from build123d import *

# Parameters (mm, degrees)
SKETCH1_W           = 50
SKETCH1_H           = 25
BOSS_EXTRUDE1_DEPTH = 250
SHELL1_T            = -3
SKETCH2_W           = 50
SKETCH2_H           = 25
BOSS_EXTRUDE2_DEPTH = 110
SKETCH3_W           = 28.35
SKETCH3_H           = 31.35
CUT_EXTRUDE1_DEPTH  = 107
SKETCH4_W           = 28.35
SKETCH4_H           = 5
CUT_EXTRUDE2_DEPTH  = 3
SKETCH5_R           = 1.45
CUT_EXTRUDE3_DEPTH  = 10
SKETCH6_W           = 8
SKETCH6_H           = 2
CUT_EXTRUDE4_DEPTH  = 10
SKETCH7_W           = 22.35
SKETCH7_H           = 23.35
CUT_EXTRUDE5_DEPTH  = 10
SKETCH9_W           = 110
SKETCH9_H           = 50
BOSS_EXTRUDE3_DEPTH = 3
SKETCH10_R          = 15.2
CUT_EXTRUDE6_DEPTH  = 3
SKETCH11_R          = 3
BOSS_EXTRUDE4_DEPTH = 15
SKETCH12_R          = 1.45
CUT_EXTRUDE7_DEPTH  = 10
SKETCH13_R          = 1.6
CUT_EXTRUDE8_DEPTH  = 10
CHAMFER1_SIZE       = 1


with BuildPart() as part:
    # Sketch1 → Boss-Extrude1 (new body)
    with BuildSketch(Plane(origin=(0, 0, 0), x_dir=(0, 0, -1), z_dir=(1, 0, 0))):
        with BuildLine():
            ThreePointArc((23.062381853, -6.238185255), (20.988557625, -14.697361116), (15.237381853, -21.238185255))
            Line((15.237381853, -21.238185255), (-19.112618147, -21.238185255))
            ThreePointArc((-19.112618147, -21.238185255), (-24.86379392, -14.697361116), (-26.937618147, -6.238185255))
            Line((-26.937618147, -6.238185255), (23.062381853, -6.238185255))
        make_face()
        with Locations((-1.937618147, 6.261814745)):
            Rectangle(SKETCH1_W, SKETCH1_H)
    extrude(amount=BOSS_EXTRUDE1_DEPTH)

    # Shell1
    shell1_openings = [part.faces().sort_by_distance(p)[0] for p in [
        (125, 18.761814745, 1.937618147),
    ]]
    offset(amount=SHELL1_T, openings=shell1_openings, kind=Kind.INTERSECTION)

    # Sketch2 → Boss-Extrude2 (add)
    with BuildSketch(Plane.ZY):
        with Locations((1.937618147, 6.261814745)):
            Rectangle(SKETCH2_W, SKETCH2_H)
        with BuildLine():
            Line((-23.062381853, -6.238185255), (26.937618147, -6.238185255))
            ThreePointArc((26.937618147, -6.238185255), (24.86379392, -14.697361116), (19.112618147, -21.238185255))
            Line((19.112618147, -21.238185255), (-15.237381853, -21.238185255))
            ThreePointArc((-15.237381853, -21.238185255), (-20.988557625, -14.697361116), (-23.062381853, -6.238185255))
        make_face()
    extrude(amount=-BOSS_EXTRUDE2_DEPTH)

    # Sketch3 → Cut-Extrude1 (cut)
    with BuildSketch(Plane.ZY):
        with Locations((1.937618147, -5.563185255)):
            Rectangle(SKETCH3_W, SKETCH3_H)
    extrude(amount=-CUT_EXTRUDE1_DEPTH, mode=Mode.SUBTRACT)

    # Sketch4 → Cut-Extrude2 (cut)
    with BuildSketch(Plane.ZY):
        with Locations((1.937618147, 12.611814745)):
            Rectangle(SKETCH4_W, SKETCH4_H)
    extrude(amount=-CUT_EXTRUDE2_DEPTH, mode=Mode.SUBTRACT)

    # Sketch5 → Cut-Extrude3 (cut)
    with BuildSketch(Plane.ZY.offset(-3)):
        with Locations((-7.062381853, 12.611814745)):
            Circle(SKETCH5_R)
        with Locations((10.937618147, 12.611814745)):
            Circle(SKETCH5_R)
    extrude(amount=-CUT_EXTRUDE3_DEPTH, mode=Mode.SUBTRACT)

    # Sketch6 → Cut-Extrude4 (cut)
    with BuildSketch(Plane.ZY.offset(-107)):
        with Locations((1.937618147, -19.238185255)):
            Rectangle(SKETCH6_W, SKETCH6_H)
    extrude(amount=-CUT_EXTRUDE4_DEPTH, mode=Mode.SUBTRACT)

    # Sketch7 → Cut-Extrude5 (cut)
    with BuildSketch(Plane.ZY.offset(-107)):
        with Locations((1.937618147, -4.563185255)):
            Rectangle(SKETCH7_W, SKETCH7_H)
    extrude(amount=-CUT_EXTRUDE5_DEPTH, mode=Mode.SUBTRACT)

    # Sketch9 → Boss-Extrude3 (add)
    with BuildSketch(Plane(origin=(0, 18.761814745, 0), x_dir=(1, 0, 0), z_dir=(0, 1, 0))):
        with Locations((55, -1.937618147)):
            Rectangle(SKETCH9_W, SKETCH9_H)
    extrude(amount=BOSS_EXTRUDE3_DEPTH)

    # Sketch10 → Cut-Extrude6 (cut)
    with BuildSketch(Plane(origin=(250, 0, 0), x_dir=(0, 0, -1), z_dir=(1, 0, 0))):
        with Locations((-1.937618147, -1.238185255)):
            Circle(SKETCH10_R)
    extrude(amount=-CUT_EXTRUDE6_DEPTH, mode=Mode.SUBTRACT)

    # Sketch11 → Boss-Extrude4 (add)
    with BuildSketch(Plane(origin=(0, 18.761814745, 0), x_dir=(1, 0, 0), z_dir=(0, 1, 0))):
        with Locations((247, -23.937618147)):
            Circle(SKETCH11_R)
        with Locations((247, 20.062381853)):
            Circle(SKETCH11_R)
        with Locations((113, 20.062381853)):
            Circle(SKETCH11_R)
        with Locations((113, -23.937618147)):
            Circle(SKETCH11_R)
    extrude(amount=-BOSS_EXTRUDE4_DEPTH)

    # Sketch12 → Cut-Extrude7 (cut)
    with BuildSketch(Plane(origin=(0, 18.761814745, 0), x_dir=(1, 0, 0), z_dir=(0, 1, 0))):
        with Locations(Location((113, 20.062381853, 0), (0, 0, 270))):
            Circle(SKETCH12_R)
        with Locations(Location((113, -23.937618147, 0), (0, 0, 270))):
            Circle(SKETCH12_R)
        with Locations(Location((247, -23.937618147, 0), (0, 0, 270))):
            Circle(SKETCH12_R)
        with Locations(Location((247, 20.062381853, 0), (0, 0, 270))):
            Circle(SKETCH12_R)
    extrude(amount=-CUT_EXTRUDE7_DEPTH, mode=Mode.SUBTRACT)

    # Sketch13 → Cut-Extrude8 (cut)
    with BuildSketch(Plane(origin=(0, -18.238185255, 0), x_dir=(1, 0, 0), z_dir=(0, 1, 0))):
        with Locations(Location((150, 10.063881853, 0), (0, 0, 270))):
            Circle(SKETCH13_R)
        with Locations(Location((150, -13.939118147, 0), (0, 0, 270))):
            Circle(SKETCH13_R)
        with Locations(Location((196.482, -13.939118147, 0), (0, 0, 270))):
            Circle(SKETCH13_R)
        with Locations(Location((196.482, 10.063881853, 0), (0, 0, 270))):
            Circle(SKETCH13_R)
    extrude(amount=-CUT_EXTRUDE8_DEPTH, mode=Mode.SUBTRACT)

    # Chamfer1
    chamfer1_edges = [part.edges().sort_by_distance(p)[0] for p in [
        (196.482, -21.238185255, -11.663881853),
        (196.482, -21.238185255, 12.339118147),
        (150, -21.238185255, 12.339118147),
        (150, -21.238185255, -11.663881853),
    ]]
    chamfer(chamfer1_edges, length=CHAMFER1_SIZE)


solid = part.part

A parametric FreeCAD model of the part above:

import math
import FreeCAD as App
import Part
import Sketcher
from FreeCAD import Vector


def edges_at(feature, points):
    """Names of the edges that pass closest to the given points."""
    edges = feature.Shape.Edges
    near = lambda p: min(range(len(edges)), key=lambda i: edges[i].distToShape(Part.Vertex(*p))[0])
    return sorted({f"Edge{near(p) + 1}" for p in points})


def faces_at(feature, points):
    """Names of the faces that lie closest to the given points."""
    faces = feature.Shape.Faces
    near = lambda p: min(range(len(faces)), key=lambda i: faces[i].distToShape(Part.Vertex(*p))[0])
    return sorted({f"Face{near(p) + 1}" for p in points})


def add_polygon(sketch, points):
    """Adds a closed chain of lines whose ends are joined by coincident constraints."""
    first, n = sketch.GeometryCount, len(points)
    for a, b in zip(points, points[1:] + points[:1]):
        sketch.addGeometry(Part.LineSegment(App.Vector(*a, 0), App.Vector(*b, 0)), False)
    for i in range(n):
        sketch.addConstraint(Sketcher.Constraint("Coincident", first + i, 2, first + (i + 1) % n, 1))

doc = App.newDocument("Part")
params = doc.addObject("Spreadsheet::Sheet", "Params")
for row, (alias, value) in enumerate([
    ("sketch1_width", "25 mm"),
    ("sketch1_height", "50 mm"),
    ("sketch1_height2", "34.35 mm"),
    ("pad1_length", "250 mm"),
    ("thickness_wall", "3 mm"),
    ("sketch2_width", "25 mm"),
    ("sketch2_height", "50 mm"),
    ("sketch2_height2", "34.35 mm"),
    ("pad2_length", "110 mm"),
    ("sketch3_width", "31.35 mm"),
    ("sketch3_height", "28.35 mm"),
    ("pocket1_length", "107 mm"),
    ("sketch4_width", "5 mm"),
    ("sketch4_height", "28.35 mm"),
    ("pocket2_length", "3 mm"),
    ("sketch5_diameter", "2.9 mm"),
    ("pocket3_length", "10 mm"),
    ("sketch6_width", "2 mm"),
    ("sketch6_height", "8 mm"),
    ("pocket4_length", "10 mm"),
    ("sketch7_width", "23.35 mm"),
    ("sketch7_height", "22.35 mm"),
    ("pocket5_length", "10 mm"),
    ("sketch8_width", "110 mm"),
    ("sketch8_height", "50 mm"),
    ("pad3_length", "3 mm"),
    ("sketch9_diameter", "30.4 mm"),
    ("pocket6_length", "3 mm"),
    ("sketch10_diameter", "6 mm"),
    ("pad4_length", "15 mm"),
    ("sketch11_diameter", "2.9 mm"),
    ("pocket7_length", "10 mm"),
    ("sketch12_diameter", "3.2 mm"),
    ("pocket8_length", "10 mm"),
    ("chamfer_size", "1 mm"),
], start=1):
    params.set(f"A{row}", alias)
    params.set(f"B{row}", "=" + value)
    params.setAlias(f"B{row}", alias)

body = doc.addObject("PartDesign::Body", "Body")

# Sketch on YZ plane
sketch1 = doc.addObject("Sketcher::SketchObject", "Sketch")
body.addObject(sketch1)
sketch1.AttachmentSupport = (doc.YZ_Plane, [""])
sketch1.MapMode = "FlatFace"
sketch1.addGeometry(Part.ArcOfCircle(Part.Circle(Vector(-6, -5, 0), Vector(0, 0, 1), 18), math.radians(-145), math.radians(-90)), False)
sketch1.addGeometry(Part.LineSegment(Vector(-6, -23, 0), Vector(19, -23, 0)), False)
sketch1.addGeometry(Part.LineSegment(Vector(19, -23, 0), Vector(19, 27, 0)), False)
sketch1.addGeometry(Part.LineSegment(Vector(19, 27, 0), Vector(-6, 27, 0)), False)
sketch1.addGeometry(Part.ArcOfCircle(Part.Circle(Vector(-6, 9, 0), Vector(0, 0, 1), 18), math.radians(90), math.radians(145)), False)
sketch1.addGeometry(Part.LineSegment(Vector(-21, 19, 0), Vector(-21, -15, 0)), False)
sketch1.addConstraint(Sketcher.Constraint("Tangent", 0, 2, 1, 1))
sketch1.addConstraint(Sketcher.Constraint("Coincident", 1, 2, 2, 1))
sketch1.addConstraint(Sketcher.Constraint("Coincident", 2, 2, 3, 1))
sketch1.addConstraint(Sketcher.Constraint("Tangent", 3, 2, 4, 1))
sketch1.addConstraint(Sketcher.Constraint("Coincident", 4, 2, 5, 1))
sketch1.addConstraint(Sketcher.Constraint("Coincident", 5, 2, 0, 1))
sketch1.addConstraint(Sketcher.Constraint("Horizontal", 1))
sketch1.addConstraint(Sketcher.Constraint("Vertical", 2))
sketch1.addConstraint(Sketcher.Constraint("Horizontal", 3))
sketch1.addConstraint(Sketcher.Constraint("Vertical", 5))
sketch1.addConstraint(Sketcher.Constraint("Equal", 0, 4))
sketch1.addConstraint(Sketcher.Constraint("Vertical", 0, 3, 4, 3))
sketch1.addConstraint(Sketcher.Constraint("DistanceX", 1, 1, 1, 2, 25.0))
sketch1.addConstraint(Sketcher.Constraint("DistanceY", 2, 1, 2, 2, 50.0))
sketch1.addConstraint(Sketcher.Constraint("DistanceX", 4, 2, 3, 2, 15.0))
sketch1.addConstraint(Sketcher.Constraint("DistanceY", 5, 2, 5, 1, 34.35))
sketch1.addConstraint(Sketcher.Constraint("DistanceY", -1, 1, 4, 3, 8.648121))
sketch1.addConstraint(Sketcher.Constraint("DistanceX", 0, 3, -1, 1, 6.238185))
sketch1.setExpression("Constraints[12]", "Params.sketch1_width")
sketch1.setExpression("Constraints[13]", "Params.sketch1_height")
sketch1.setExpression("Constraints[15]", "Params.sketch1_height2")
pad1 = doc.addObject("PartDesign::Pad", "Pad")
body.addObject(pad1)
pad1.Profile = sketch1
pad1.setExpression("Length", "Params.pad1_length")
doc.recompute()

thickness = doc.addObject("PartDesign::Thickness", "Thickness")
body.addObject(thickness)
thickness.Base = (pad1, faces_at(pad1, [(125, 18.762, 1.938)]))
thickness.setExpression("Value", "Params.thickness_wall")
thickness.Reversed = True
thickness.Join = "Intersection"

# Sketch on YZ plane
sketch2 = doc.addObject("Sketcher::SketchObject", "Sketch001")
body.addObject(sketch2)
sketch2.AttachmentSupport = (doc.YZ_Plane, [""])
sketch2.MapMode = "FlatFace"
sketch2.addGeometry(Part.LineSegment(Vector(19, -23, 0), Vector(-6, -23, 0)), False)
sketch2.addGeometry(Part.ArcOfCircle(Part.Circle(Vector(-6, -5, 0), Vector(0, 0, 1), 18), math.radians(-145), math.radians(-90)), False)
sketch2.addGeometry(Part.LineSegment(Vector(-21, -15, 0), Vector(-21, 19, 0)), False)
sketch2.addGeometry(Part.ArcOfCircle(Part.Circle(Vector(-6, 9, 0), Vector(0, 0, 1), 18), math.radians(90), math.radians(145)), False)
sketch2.addGeometry(Part.LineSegment(Vector(-6, 27, 0), Vector(19, 27, 0)), False)
sketch2.addGeometry(Part.LineSegment(Vector(19, 27, 0), Vector(19, -23, 0)), False)
sketch2.addConstraint(Sketcher.Constraint("Tangent", 0, 2, 1, 2))
sketch2.addConstraint(Sketcher.Constraint("Coincident", 1, 1, 2, 1))
sketch2.addConstraint(Sketcher.Constraint("Coincident", 2, 2, 3, 2))
sketch2.addConstraint(Sketcher.Constraint("Tangent", 3, 1, 4, 1))
sketch2.addConstraint(Sketcher.Constraint("Coincident", 4, 2, 5, 1))
sketch2.addConstraint(Sketcher.Constraint("Coincident", 5, 2, 0, 1))
sketch2.addConstraint(Sketcher.Constraint("Horizontal", 0))
sketch2.addConstraint(Sketcher.Constraint("Vertical", 2))
sketch2.addConstraint(Sketcher.Constraint("Horizontal", 4))
sketch2.addConstraint(Sketcher.Constraint("Vertical", 5))
sketch2.addConstraint(Sketcher.Constraint("Equal", 1, 3))
sketch2.addConstraint(Sketcher.Constraint("Vertical", 1, 3, 3, 3))
sketch2.addConstraint(Sketcher.Constraint("DistanceX", 0, 2, 0, 1, 25.0))
sketch2.addConstraint(Sketcher.Constraint("DistanceY", 5, 2, 5, 1, 50.0))
sketch2.addConstraint(Sketcher.Constraint("DistanceX", 1, 1, 0, 2, 15.0))
sketch2.addConstraint(Sketcher.Constraint("DistanceY", 2, 1, 2, 2, 34.35))
sketch2.addConstraint(Sketcher.Constraint("DistanceY", -1, 1, 3, 3, 8.648121))
sketch2.addConstraint(Sketcher.Constraint("DistanceX", 1, 3, -1, 1, 6.238185))
sketch2.setExpression("Constraints[12]", "Params.sketch2_width")
sketch2.setExpression("Constraints[13]", "Params.sketch2_height")
sketch2.setExpression("Constraints[15]", "Params.sketch2_height2")
pad2 = doc.addObject("PartDesign::Pad", "Pad001")
body.addObject(pad2)
pad2.Profile = sketch2
pad2.setExpression("Length", "Params.pad2_length")

# Sketch on YZ plane
sketch3 = doc.addObject("Sketcher::SketchObject", "Sketch002")
body.addObject(sketch3)
sketch3.AttachmentSupport = (doc.YZ_Plane, [""])
sketch3.MapMode = "FlatFace"
add_polygon(sketch3, [(10, -12), (-21, -12), (-21, 16), (10, 16)])  # lines 0-3
sketch3.addConstraint(Sketcher.Constraint("Horizontal", 0))
sketch3.addConstraint(Sketcher.Constraint("Vertical", 1))
sketch3.addConstraint(Sketcher.Constraint("Horizontal", 2))
sketch3.addConstraint(Sketcher.Constraint("Vertical", 3))
sketch3.addConstraint(Sketcher.Constraint("DistanceX", 0, 2, 0, 1, 31.35))
sketch3.addConstraint(Sketcher.Constraint("DistanceY", 1, 1, 1, 2, 28.35))
sketch3.addConstraint(Sketcher.Constraint("DistanceY", 0, 2, -1, 1, 12.237382))
sketch3.addConstraint(Sketcher.Constraint("DistanceX", 0, 2, -1, 1, 21.238185))
sketch3.setExpression("Constraints[8]", "Params.sketch3_width")
sketch3.setExpression("Constraints[9]", "Params.sketch3_height")
pocket1 = doc.addObject("PartDesign::Pocket", "Pocket")
body.addObject(pocket1)
pocket1.Profile = sketch3
pocket1.setExpression("Length", "Params.pocket1_length")
pocket1.Reversed = True

# Sketch on YZ plane
sketch4 = doc.addObject("Sketcher::SketchObject", "Sketch003")
body.addObject(sketch4)
sketch4.AttachmentSupport = (doc.YZ_Plane, [""])
sketch4.MapMode = "FlatFace"
add_polygon(sketch4, [(15, -12), (10, -12), (10, 16), (15, 16)])  # lines 0-3
sketch4.addConstraint(Sketcher.Constraint("Horizontal", 0))
sketch4.addConstraint(Sketcher.Constraint("Vertical", 1))
sketch4.addConstraint(Sketcher.Constraint("Horizontal", 2))
sketch4.addConstraint(Sketcher.Constraint("Vertical", 3))
sketch4.addConstraint(Sketcher.Constraint("DistanceX", 0, 2, 0, 1, 5.0))
sketch4.addConstraint(Sketcher.Constraint("DistanceY", 1, 1, 1, 2, 28.35))
sketch4.addConstraint(Sketcher.Constraint("DistanceY", 0, 2, -1, 1, 12.237382))
sketch4.addConstraint(Sketcher.Constraint("DistanceX", -1, 1, 0, 2, 10.111815))
sketch4.setExpression("Constraints[8]", "Params.sketch4_width")
sketch4.setExpression("Constraints[9]", "Params.sketch4_height")
pocket2 = doc.addObject("PartDesign::Pocket", "Pocket001")
body.addObject(pocket2)
pocket2.Profile = sketch4
pocket2.setExpression("Length", "Params.pocket2_length")
pocket2.Reversed = True

# Sketch on YZ plane
sketch5 = doc.addObject("Sketcher::SketchObject", "Sketch004")
body.addObject(sketch5)
sketch5.AttachmentSupport = (doc.YZ_Plane, [""])
sketch5.MapMode = "FlatFace"
sketch5.AttachmentOffset = App.Placement(Vector(0, 0, 3), App.Rotation())
sketch5.addGeometry(Part.Circle(Vector(12.6, -7.1, 0), Vector(0, 0, 1), 1.4), False)
sketch5.addGeometry(Part.Circle(Vector(12.6, 10.9, 0), Vector(0, 0, 1), 1.4), False)
sketch5.addConstraint(Sketcher.Constraint("Equal", 0, 1))
sketch5.addConstraint(Sketcher.Constraint("Vertical", 0, 3, 1, 3))
sketch5.addConstraint(Sketcher.Constraint("Diameter", 0, 2.9))
sketch5.addConstraint(Sketcher.Constraint("DistanceY", 0, 3, 1, 3, 18.0))
sketch5.addConstraint(Sketcher.Constraint("DistanceY", 0, 3, -1, 1, 7.062382))
sketch5.addConstraint(Sketcher.Constraint("DistanceX", -1, 1, 0, 3, 12.611815))
sketch5.setExpression("Constraints[2]", "Params.sketch5_diameter")
pocket3 = doc.addObject("PartDesign::Pocket", "Pocket002")
body.addObject(pocket3)
pocket3.Profile = sketch5
pocket3.setExpression("Length", "Params.pocket3_length")
pocket3.Reversed = True

# Sketch on YZ plane
sketch6 = doc.addObject("Sketcher::SketchObject", "Sketch005")
body.addObject(sketch6)
sketch6.AttachmentSupport = (doc.YZ_Plane, [""])
sketch6.MapMode = "FlatFace"
sketch6.AttachmentOffset = App.Placement(Vector(0, 0, 107), App.Rotation())
add_polygon(sketch6, [(-18.2, -2.1), (-20.2, -2.1), (-20.2, 5.9), (-18.2, 5.9)])  # lines 0-3
sketch6.addConstraint(Sketcher.Constraint("Horizontal", 0))
sketch6.addConstraint(Sketcher.Constraint("Vertical", 1))
sketch6.addConstraint(Sketcher.Constraint("Horizontal", 2))
sketch6.addConstraint(Sketcher.Constraint("Vertical", 3))
sketch6.addConstraint(Sketcher.Constraint("DistanceX", 0, 2, 0, 1, 2.0))
sketch6.addConstraint(Sketcher.Constraint("DistanceY", 1, 1, 1, 2, 8.0))
sketch6.addConstraint(Sketcher.Constraint("DistanceY", 0, 2, -1, 1, 2.062382))
sketch6.addConstraint(Sketcher.Constraint("DistanceX", 0, 2, -1, 1, 20.238185))
sketch6.setExpression("Constraints[8]", "Params.sketch6_width")
sketch6.setExpression("Constraints[9]", "Params.sketch6_height")
pocket4 = doc.addObject("PartDesign::Pocket", "Pocket003")
body.addObject(pocket4)
pocket4.Profile = sketch6
pocket4.setExpression("Length", "Params.pocket4_length")
pocket4.Reversed = True

# Sketch on YZ plane
sketch7 = doc.addObject("Sketcher::SketchObject", "Sketch006")
body.addObject(sketch7)
sketch7.AttachmentSupport = (doc.YZ_Plane, [""])
sketch7.MapMode = "FlatFace"
sketch7.AttachmentOffset = App.Placement(Vector(0, 0, 107), App.Rotation())
add_polygon(sketch7, [(7, -9), (-16, -9), (-16, 13), (7, 13)])  # lines 0-3
sketch7.addConstraint(Sketcher.Constraint("Horizontal", 0))
sketch7.addConstraint(Sketcher.Constraint("Vertical", 1))
sketch7.addConstraint(Sketcher.Constraint("Horizontal", 2))
sketch7.addConstraint(Sketcher.Constraint("Vertical", 3))
sketch7.addConstraint(Sketcher.Constraint("DistanceX", 0, 2, 0, 1, 23.35))
sketch7.addConstraint(Sketcher.Constraint("DistanceY", 1, 1, 1, 2, 22.35))
sketch7.addConstraint(Sketcher.Constraint("DistanceY", 0, 2, -1, 1, 9.237382))
sketch7.addConstraint(Sketcher.Constraint("DistanceX", 0, 2, -1, 1, 16.238185))
sketch7.setExpression("Constraints[8]", "Params.sketch7_width")
sketch7.setExpression("Constraints[9]", "Params.sketch7_height")
pocket5 = doc.addObject("PartDesign::Pocket", "Pocket004")
body.addObject(pocket5)
pocket5.Profile = sketch7
pocket5.setExpression("Length", "Params.pocket5_length")
pocket5.Reversed = True

# Sketch on XZ plane
sketch8 = doc.addObject("Sketcher::SketchObject", "Sketch007")
body.addObject(sketch8)
sketch8.AttachmentSupport = (doc.XZ_Plane, [""])
sketch8.MapMode = "FlatFace"
sketch8.AttachmentOffset = App.Placement(Vector(0, 0, -18.761815), App.Rotation())
add_polygon(sketch8, [(0, -23), (0, 27), (110, 27), (110, -23)])  # lines 0-3
sketch8.addConstraint(Sketcher.Constraint("Vertical", 0))
sketch8.addConstraint(Sketcher.Constraint("Horizontal", 1))
sketch8.addConstraint(Sketcher.Constraint("Vertical", 2))
sketch8.addConstraint(Sketcher.Constraint("Horizontal", 3))
sketch8.addConstraint(Sketcher.Constraint("PointOnObject", 0, 2, -2))
sketch8.addConstraint(Sketcher.Constraint("DistanceX", 1, 1, 1, 2, 110.0))
sketch8.addConstraint(Sketcher.Constraint("DistanceY", 0, 1, 0, 2, 50.0))
sketch8.addConstraint(Sketcher.Constraint("DistanceY", -1, 1, 0, 2, 26.937618))
sketch8.setExpression("Constraints[9]", "Params.sketch8_width")
sketch8.setExpression("Constraints[10]", "Params.sketch8_height")
pad3 = doc.addObject("PartDesign::Pad", "Pad002")
body.addObject(pad3)
pad3.Profile = sketch8
pad3.setExpression("Length", "Params.pad3_length")
pad3.Reversed = True

# Sketch on YZ plane
sketch9 = doc.addObject("Sketcher::SketchObject", "Sketch008")
body.addObject(sketch9)
sketch9.AttachmentSupport = (doc.YZ_Plane, [""])
sketch9.MapMode = "FlatFace"
sketch9.AttachmentOffset = App.Placement(Vector(0, 0, 250), App.Rotation())
sketch9.addGeometry(Part.Circle(Vector(-1, 2, 0), Vector(0, 0, 1), 15), False)
sketch9.addConstraint(Sketcher.Constraint("Diameter", 0, 30.4))
sketch9.addConstraint(Sketcher.Constraint("DistanceY", -1, 1, 0, 3, 1.937618))
sketch9.addConstraint(Sketcher.Constraint("DistanceX", 0, 3, -1, 1, 1.238185))
sketch9.setExpression("Constraints[0]", "Params.sketch9_diameter")
pocket6 = doc.addObject("PartDesign::Pocket", "Pocket005")
body.addObject(pocket6)
pocket6.Profile = sketch9
pocket6.setExpression("Length", "Params.pocket6_length")

# Sketch on XZ plane
sketch10 = doc.addObject("Sketcher::SketchObject", "Sketch009")
body.addObject(sketch10)
sketch10.AttachmentSupport = (doc.XZ_Plane, [""])
sketch10.MapMode = "FlatFace"
sketch10.AttachmentOffset = App.Placement(Vector(0, 0, -18.761815), App.Rotation())
sketch10.addGeometry(Part.Circle(Vector(247, 23.9, 0), Vector(0, 0, 1), 3), False)
sketch10.addGeometry(Part.Circle(Vector(247, -20.1, 0), Vector(0, 0, 1), 3), False)
sketch10.addGeometry(Part.Circle(Vector(113, -20.1, 0), Vector(0, 0, 1), 3), False)
sketch10.addGeometry(Part.Circle(Vector(113, 23.9, 0), Vector(0, 0, 1), 3), False)
sketch10.addConstraint(Sketcher.Constraint("Equal", 0, 1))
sketch10.addConstraint(Sketcher.Constraint("Equal", 1, 2))
sketch10.addConstraint(Sketcher.Constraint("Equal", 2, 3))
sketch10.addConstraint(Sketcher.Constraint("Horizontal", 1, 3, 2, 3))
sketch10.addConstraint(Sketcher.Constraint("Horizontal", 0, 3, 3, 3))
sketch10.addConstraint(Sketcher.Constraint("Vertical", 0, 3, 1, 3))
sketch10.addConstraint(Sketcher.Constraint("Vertical", 2, 3, 3, 3))
sketch10.addConstraint(Sketcher.Constraint("Diameter", 0, 6.0))
sketch10.addConstraint(Sketcher.Constraint("DistanceX", -1, 1, 0, 3, 247.0))
sketch10.addConstraint(Sketcher.Constraint("DistanceX", -1, 1, 2, 3, 113.0))
sketch10.addConstraint(Sketcher.Constraint("DistanceY", 1, 3, 0, 3, 44.0))
sketch10.addConstraint(Sketcher.Constraint("DistanceY", -1, 1, 0, 3, 23.937618))
sketch10.setExpression("Constraints[7]", "Params.sketch10_diameter")
pad4 = doc.addObject("PartDesign::Pad", "Pad003")
body.addObject(pad4)
pad4.Profile = sketch10
pad4.setExpression("Length", "Params.pad4_length")

# Sketch on XZ plane
sketch11 = doc.addObject("Sketcher::SketchObject", "Sketch010")
body.addObject(sketch11)
sketch11.AttachmentSupport = (doc.XZ_Plane, [""])
sketch11.MapMode = "FlatFace"
sketch11.AttachmentOffset = App.Placement(Vector(0, 0, -18.761815), App.Rotation())
sketch11.addGeometry(Part.Circle(Vector(113, -20.1, 0), Vector(0, 0, 1), 1.4), False)
sketch11.addGeometry(Part.Circle(Vector(113, 23.9, 0), Vector(0, 0, 1), 1.4), False)
sketch11.addGeometry(Part.Circle(Vector(247, 23.9, 0), Vector(0, 0, 1), 1.4), False)
sketch11.addGeometry(Part.Circle(Vector(247, -20.1, 0), Vector(0, 0, 1), 1.4), False)
sketch11.addConstraint(Sketcher.Constraint("Equal", 0, 1))
sketch11.addConstraint(Sketcher.Constraint("Equal", 1, 2))
sketch11.addConstraint(Sketcher.Constraint("Equal", 2, 3))
sketch11.addConstraint(Sketcher.Constraint("Horizontal", 1, 3, 2, 3))
sketch11.addConstraint(Sketcher.Constraint("Horizontal", 0, 3, 3, 3))
sketch11.addConstraint(Sketcher.Constraint("Vertical", 0, 3, 1, 3))
sketch11.addConstraint(Sketcher.Constraint("Vertical", 2, 3, 3, 3))
sketch11.addConstraint(Sketcher.Constraint("Diameter", 0, 2.9))
sketch11.addConstraint(Sketcher.Constraint("DistanceX", -1, 1, 0, 3, 113.0))
sketch11.addConstraint(Sketcher.Constraint("DistanceX", -1, 1, 2, 3, 247.0))
sketch11.addConstraint(Sketcher.Constraint("DistanceY", 0, 3, 1, 3, 44.0))
sketch11.addConstraint(Sketcher.Constraint("DistanceY", 0, 3, -1, 1, 20.062382))
sketch11.setExpression("Constraints[7]", "Params.sketch11_diameter")
pocket7 = doc.addObject("PartDesign::Pocket", "Pocket006")
body.addObject(pocket7)
pocket7.Profile = sketch11
pocket7.setExpression("Length", "Params.pocket7_length")
pocket7.Reversed = True

# Sketch on XZ plane
sketch12 = doc.addObject("Sketcher::SketchObject", "Sketch011")
body.addObject(sketch12)
sketch12.AttachmentSupport = (doc.XZ_Plane, [""])
sketch12.MapMode = "FlatFace"
sketch12.AttachmentOffset = App.Placement(Vector(0, 0, 18.238185), App.Rotation())
sketch12.addGeometry(Part.Circle(Vector(150, -10.1, 0), Vector(0, 0, 1), 1.6), False)
sketch12.addGeometry(Part.Circle(Vector(150, 13.9, 0), Vector(0, 0, 1), 1.6), False)
sketch12.addGeometry(Part.Circle(Vector(196.5, 13.9, 0), Vector(0, 0, 1), 1.6), False)
sketch12.addGeometry(Part.Circle(Vector(196.5, -10.1, 0), Vector(0, 0, 1), 1.6), False)
sketch12.addConstraint(Sketcher.Constraint("Equal", 0, 1))
sketch12.addConstraint(Sketcher.Constraint("Equal", 1, 2))
sketch12.addConstraint(Sketcher.Constraint("Equal", 2, 3))
sketch12.addConstraint(Sketcher.Constraint("Horizontal", 1, 3, 2, 3))
sketch12.addConstraint(Sketcher.Constraint("Horizontal", 0, 3, 3, 3))
sketch12.addConstraint(Sketcher.Constraint("Vertical", 0, 3, 1, 3))
sketch12.addConstraint(Sketcher.Constraint("Vertical", 2, 3, 3, 3))
sketch12.addConstraint(Sketcher.Constraint("Diameter", 0, 3.2))
sketch12.addConstraint(Sketcher.Constraint("DistanceX", -1, 1, 0, 3, 150.0))
sketch12.addConstraint(Sketcher.Constraint("DistanceX", -1, 1, 2, 3, 196.482))
sketch12.addConstraint(Sketcher.Constraint("DistanceY", 0, 3, 1, 3, 24.003))
sketch12.addConstraint(Sketcher.Constraint("DistanceY", 0, 3, -1, 1, 10.063882))
sketch12.setExpression("Constraints[7]", "Params.sketch12_diameter")
pocket8 = doc.addObject("PartDesign::Pocket", "Pocket007")
body.addObject(pocket8)
pocket8.Profile = sketch12
pocket8.setExpression("Length", "Params.pocket8_length")
pocket8.Reversed = True
doc.recompute()

chamfer = doc.addObject("PartDesign::Chamfer", "Chamfer")
body.addObject(chamfer)
chamfer.Base = (pocket8, edges_at(pocket8, [
    (196.482, -21.238, -11.664),
    (196.482, -21.238, 12.339),
    (150, -21.238, 12.339),
    (150, -21.238, -11.664),
]))
chamfer.setExpression("Size", "Params.chamfer_size")

doc.recompute()
